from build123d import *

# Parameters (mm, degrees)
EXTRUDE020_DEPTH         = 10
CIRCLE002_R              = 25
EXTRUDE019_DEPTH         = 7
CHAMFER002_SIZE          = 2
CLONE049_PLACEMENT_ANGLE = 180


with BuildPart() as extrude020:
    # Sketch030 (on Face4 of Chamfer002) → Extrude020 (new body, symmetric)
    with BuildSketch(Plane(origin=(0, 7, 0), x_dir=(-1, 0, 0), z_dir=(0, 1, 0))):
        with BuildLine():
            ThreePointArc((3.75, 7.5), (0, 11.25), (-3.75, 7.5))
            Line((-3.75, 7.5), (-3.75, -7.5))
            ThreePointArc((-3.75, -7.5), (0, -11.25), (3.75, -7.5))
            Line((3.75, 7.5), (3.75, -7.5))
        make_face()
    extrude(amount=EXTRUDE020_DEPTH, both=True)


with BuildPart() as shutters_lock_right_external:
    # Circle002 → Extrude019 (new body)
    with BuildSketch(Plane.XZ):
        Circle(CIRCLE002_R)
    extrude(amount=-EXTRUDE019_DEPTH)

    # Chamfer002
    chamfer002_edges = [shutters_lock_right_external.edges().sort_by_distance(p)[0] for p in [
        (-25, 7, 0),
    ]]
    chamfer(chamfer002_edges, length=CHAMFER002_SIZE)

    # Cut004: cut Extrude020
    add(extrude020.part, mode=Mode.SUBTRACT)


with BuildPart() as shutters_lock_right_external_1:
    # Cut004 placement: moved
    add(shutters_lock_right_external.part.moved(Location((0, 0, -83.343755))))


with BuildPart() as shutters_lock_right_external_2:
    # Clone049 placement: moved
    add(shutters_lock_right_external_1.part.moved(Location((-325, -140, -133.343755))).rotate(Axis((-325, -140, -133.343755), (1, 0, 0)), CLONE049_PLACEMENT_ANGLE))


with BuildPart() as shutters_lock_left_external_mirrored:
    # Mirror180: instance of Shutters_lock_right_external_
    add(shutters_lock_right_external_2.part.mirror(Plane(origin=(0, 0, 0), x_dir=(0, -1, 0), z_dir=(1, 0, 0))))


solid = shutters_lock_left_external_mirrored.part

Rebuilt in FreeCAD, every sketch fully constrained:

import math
import FreeCAD as App
import Part
import Sketcher

V = App.Vector


def edges_at(feature, points):
    """Names of the edges that pass closest to the given points."""
    edges = feature.Shape.Edges
    near = lambda p: min(range(len(edges)), key=lambda i: edges[i].distToShape(Part.Vertex(*p))[0])
    return sorted({f"Edge{near(p) + 1}" for p in points})

doc = App.newDocument("Part")
body = doc.addObject("PartDesign::Body", "Body")

sketch1 = body.newObject("Sketcher::SketchObject", "Sketch")
sketch1.AttachmentSupport = (doc.getObject("XZ_Plane"), [""])
sketch1.MapMode = "FlatFace"
sketch1.AttachmentOffset = App.Placement(V(0, 0, -7), App.Rotation())
sketch1.addGeometry([
    Part.ArcOfCircle(Part.Circle(V(0, 7.5, 0), V(0, 0, 1), 3.8), math.radians(0), math.radians(180)),
    Part.LineSegment(V(3.8, 7.5, 0), V(3.8, -7.5, 0)),
    Part.ArcOfCircle(Part.Circle(V(0, -7.5, 0), V(0, 0, 1), 3.8), math.radians(180), math.radians(360)),
    Part.LineSegment(V(-3.8, -7.5, 0), V(-3.8, 7.5, 0)),
], False)
sketch1.addConstraint([
    Sketcher.Constraint("Tangent", 0, 1, 1, 1),
    Sketcher.Constraint("Tangent", 1, 2, 2, 2),
    Sketcher.Constraint("Tangent", 2, 1, 3, 1),
    Sketcher.Constraint("Tangent", 3, 2, 0, 2),
    Sketcher.Constraint("Vertical", 1),
    Sketcher.Constraint("Vertical", 3),
    Sketcher.Constraint("Symmetric", 0, 3, 2, 3, -1, 1),
    Sketcher.Constraint("DistanceY", 1, 2, 1, 1, 15.0),
    Sketcher.Constraint("Radius", 0, 3.75),
])
pad1 = body.newObject("PartDesign::Pad", "Pad")
pad1.Profile = sketch1
pad1.Length = 20
pad1.Midplane = True
body2 = doc.addObject("PartDesign::Body", "Body001")

sketch2 = body2.newObject("Sketcher::SketchObject", "Sketch001")
sketch2.AttachmentSupport = (doc.getObject("XZ_Plane001"), [""])
sketch2.MapMode = "FlatFace"
sketch2.addGeometry(Part.Circle(V(0, 0, 0), V(0, 0, 1), 25), False)
sketch2.addConstraint([
    Sketcher.Constraint("Coincident", 0, 3, -1, 1),
    Sketcher.Constraint("Diameter", 0, 50.0),
])
pad2 = body2.newObject("PartDesign::Pad", "Pad001")
pad2.Profile = sketch2
pad2.Length = 7
pad2.Reversed = True
doc.recompute()

chamfer = body2.newObject("PartDesign::Chamfer", "Chamfer")
chamfer.Base = (pad2, edges_at(pad2, [(-25, 7, 0)]))
chamfer.Size = 2
doc.recompute()

boolean = body2.newObject("PartDesign::Boolean", "Boolean")
boolean.Type = "Cut"
boolean.addObjects([body])
body3 = doc.addObject("PartDesign::Body", "Body002")
doc.recompute()

body2.Placement = App.Placement(V(0, 0, -83.343755), App.Rotation(V(0, 0, 1), 0))
boolean2 = body3.newObject("PartDesign::Boolean", "Boolean001")
boolean2.Type = "Fuse"
boolean2.addObjects([body2])
body4 = doc.addObject("PartDesign::Body", "Body003")
doc.recompute()

body3.Placement = App.Placement(V(-325, -140, -133.343755), App.Rotation(V(1, 0, 0), 180))
boolean3 = body4.newObject("PartDesign::Boolean", "Boolean002")
boolean3.Type = "Fuse"
boolean3.addObjects([body3])
body5 = doc.addObject("PartDesign::Body", "Body004")
doc.recompute()

mirroring = doc.addObject("Part::Mirroring", "Mirroring")
mirroring.Source = body4
mirroring.Base = V(0, 0, 0)
mirroring.Normal = V(1, 0, 0)
body5.BaseFeature = mirroring
doc.recompute()
body4.Visibility = False
mirroring.Visibility = False

doc.recompute()
